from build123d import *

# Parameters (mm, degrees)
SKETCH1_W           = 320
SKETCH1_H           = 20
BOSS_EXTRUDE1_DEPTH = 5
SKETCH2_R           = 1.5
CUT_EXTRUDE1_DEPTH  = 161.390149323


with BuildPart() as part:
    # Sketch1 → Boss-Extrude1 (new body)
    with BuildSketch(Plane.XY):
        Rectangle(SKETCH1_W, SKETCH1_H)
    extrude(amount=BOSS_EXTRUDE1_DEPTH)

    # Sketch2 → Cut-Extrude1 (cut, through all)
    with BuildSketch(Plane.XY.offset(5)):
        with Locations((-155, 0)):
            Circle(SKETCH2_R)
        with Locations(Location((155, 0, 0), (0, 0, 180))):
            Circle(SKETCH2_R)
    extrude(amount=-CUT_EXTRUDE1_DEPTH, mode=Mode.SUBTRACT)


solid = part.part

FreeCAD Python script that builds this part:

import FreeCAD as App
import Part
import Sketcher

V = App.Vector
Q = App.Units.Quantity

doc = App.newDocument("Part")
body = doc.addObject("PartDesign::Body", "Body")

sketch1 = body.newObject("Sketcher::SketchObject", "Sketch")
sketch1.AttachmentSupport = (doc.getObject("XY_Plane"), [""])
sketch1.MapMode = "FlatFace"
sketch1.addGeometry([
    Part.LineSegment(V(-160, 10, 0), V(-160, -10, 0)),
    Part.LineSegment(V(-160, -10, 0), V(160, -10, 0)),
    Part.LineSegment(V(160, -10, 0), V(160, 10, 0)),
    Part.LineSegment(V(160, 10, 0), V(-160, 10, 0)),
], False)
sketch1.addConstraint([
    Sketcher.Constraint("Coincident", 0, 2, 1, 1),
    Sketcher.Constraint("Coincident", 1, 2, 2, 1),
    Sketcher.Constraint("Coincident", 2, 2, 3, 1),
    Sketcher.Constraint("Coincident", 3, 2, 0, 1),
    Sketcher.Constraint("Vertical", 0),
    Sketcher.Constraint("Horizontal", 1),
    Sketcher.Constraint("Vertical", 2),
    Sketcher.Constraint("Horizontal", 3),
    Sketcher.Constraint("Symmetric", 0, 2, 2, 2, -1, 1),
    Sketcher.Constraint("DistanceX", 1, 1, 1, 2, Q("320 mm")),
    Sketcher.Constraint("DistanceY", 0, 2, 0, 1, Q("20 mm")),
])
pad1 = body.newObject("PartDesign::Pad", "Pad")
pad1.Profile = sketch1
pad1.Length = 5

sketch2 = body.newObject("Sketcher::SketchObject", "Sketch001")
sketch2.AttachmentSupport = (doc.getObject("XY_Plane"), [""])
sketch2.MapMode = "FlatFace"
sketch2.AttachmentOffset = App.Placement(V(0, 0, 5), App.Rotation())
sketch2.addGeometry([
    Part.Circle(V(-155, 0, 0), V(0, 0, 1), 1.5),
    Part.Circle(V(155, 0, 0), V(0, 0, 1), 1.5),
], False)
sketch2.addConstraint([
    Sketcher.Constraint("Equal", 0, 1),
    Sketcher.Constraint("Symmetric", 0, 3, 1, 3, -1, 1),
    Sketcher.Constraint("PointOnObject", 0, 3, -1),
    Sketcher.Constraint("Diameter", 0, Q("3 mm")),
    Sketcher.Constraint("DistanceX", 0, 3, -1, 1, Q("155 mm")),
])
pocket1 = body.newObject("PartDesign::Pocket", "Pocket")
pocket1.Profile = sketch2
pocket1.Type = "ThroughAll"

doc.recompute()
